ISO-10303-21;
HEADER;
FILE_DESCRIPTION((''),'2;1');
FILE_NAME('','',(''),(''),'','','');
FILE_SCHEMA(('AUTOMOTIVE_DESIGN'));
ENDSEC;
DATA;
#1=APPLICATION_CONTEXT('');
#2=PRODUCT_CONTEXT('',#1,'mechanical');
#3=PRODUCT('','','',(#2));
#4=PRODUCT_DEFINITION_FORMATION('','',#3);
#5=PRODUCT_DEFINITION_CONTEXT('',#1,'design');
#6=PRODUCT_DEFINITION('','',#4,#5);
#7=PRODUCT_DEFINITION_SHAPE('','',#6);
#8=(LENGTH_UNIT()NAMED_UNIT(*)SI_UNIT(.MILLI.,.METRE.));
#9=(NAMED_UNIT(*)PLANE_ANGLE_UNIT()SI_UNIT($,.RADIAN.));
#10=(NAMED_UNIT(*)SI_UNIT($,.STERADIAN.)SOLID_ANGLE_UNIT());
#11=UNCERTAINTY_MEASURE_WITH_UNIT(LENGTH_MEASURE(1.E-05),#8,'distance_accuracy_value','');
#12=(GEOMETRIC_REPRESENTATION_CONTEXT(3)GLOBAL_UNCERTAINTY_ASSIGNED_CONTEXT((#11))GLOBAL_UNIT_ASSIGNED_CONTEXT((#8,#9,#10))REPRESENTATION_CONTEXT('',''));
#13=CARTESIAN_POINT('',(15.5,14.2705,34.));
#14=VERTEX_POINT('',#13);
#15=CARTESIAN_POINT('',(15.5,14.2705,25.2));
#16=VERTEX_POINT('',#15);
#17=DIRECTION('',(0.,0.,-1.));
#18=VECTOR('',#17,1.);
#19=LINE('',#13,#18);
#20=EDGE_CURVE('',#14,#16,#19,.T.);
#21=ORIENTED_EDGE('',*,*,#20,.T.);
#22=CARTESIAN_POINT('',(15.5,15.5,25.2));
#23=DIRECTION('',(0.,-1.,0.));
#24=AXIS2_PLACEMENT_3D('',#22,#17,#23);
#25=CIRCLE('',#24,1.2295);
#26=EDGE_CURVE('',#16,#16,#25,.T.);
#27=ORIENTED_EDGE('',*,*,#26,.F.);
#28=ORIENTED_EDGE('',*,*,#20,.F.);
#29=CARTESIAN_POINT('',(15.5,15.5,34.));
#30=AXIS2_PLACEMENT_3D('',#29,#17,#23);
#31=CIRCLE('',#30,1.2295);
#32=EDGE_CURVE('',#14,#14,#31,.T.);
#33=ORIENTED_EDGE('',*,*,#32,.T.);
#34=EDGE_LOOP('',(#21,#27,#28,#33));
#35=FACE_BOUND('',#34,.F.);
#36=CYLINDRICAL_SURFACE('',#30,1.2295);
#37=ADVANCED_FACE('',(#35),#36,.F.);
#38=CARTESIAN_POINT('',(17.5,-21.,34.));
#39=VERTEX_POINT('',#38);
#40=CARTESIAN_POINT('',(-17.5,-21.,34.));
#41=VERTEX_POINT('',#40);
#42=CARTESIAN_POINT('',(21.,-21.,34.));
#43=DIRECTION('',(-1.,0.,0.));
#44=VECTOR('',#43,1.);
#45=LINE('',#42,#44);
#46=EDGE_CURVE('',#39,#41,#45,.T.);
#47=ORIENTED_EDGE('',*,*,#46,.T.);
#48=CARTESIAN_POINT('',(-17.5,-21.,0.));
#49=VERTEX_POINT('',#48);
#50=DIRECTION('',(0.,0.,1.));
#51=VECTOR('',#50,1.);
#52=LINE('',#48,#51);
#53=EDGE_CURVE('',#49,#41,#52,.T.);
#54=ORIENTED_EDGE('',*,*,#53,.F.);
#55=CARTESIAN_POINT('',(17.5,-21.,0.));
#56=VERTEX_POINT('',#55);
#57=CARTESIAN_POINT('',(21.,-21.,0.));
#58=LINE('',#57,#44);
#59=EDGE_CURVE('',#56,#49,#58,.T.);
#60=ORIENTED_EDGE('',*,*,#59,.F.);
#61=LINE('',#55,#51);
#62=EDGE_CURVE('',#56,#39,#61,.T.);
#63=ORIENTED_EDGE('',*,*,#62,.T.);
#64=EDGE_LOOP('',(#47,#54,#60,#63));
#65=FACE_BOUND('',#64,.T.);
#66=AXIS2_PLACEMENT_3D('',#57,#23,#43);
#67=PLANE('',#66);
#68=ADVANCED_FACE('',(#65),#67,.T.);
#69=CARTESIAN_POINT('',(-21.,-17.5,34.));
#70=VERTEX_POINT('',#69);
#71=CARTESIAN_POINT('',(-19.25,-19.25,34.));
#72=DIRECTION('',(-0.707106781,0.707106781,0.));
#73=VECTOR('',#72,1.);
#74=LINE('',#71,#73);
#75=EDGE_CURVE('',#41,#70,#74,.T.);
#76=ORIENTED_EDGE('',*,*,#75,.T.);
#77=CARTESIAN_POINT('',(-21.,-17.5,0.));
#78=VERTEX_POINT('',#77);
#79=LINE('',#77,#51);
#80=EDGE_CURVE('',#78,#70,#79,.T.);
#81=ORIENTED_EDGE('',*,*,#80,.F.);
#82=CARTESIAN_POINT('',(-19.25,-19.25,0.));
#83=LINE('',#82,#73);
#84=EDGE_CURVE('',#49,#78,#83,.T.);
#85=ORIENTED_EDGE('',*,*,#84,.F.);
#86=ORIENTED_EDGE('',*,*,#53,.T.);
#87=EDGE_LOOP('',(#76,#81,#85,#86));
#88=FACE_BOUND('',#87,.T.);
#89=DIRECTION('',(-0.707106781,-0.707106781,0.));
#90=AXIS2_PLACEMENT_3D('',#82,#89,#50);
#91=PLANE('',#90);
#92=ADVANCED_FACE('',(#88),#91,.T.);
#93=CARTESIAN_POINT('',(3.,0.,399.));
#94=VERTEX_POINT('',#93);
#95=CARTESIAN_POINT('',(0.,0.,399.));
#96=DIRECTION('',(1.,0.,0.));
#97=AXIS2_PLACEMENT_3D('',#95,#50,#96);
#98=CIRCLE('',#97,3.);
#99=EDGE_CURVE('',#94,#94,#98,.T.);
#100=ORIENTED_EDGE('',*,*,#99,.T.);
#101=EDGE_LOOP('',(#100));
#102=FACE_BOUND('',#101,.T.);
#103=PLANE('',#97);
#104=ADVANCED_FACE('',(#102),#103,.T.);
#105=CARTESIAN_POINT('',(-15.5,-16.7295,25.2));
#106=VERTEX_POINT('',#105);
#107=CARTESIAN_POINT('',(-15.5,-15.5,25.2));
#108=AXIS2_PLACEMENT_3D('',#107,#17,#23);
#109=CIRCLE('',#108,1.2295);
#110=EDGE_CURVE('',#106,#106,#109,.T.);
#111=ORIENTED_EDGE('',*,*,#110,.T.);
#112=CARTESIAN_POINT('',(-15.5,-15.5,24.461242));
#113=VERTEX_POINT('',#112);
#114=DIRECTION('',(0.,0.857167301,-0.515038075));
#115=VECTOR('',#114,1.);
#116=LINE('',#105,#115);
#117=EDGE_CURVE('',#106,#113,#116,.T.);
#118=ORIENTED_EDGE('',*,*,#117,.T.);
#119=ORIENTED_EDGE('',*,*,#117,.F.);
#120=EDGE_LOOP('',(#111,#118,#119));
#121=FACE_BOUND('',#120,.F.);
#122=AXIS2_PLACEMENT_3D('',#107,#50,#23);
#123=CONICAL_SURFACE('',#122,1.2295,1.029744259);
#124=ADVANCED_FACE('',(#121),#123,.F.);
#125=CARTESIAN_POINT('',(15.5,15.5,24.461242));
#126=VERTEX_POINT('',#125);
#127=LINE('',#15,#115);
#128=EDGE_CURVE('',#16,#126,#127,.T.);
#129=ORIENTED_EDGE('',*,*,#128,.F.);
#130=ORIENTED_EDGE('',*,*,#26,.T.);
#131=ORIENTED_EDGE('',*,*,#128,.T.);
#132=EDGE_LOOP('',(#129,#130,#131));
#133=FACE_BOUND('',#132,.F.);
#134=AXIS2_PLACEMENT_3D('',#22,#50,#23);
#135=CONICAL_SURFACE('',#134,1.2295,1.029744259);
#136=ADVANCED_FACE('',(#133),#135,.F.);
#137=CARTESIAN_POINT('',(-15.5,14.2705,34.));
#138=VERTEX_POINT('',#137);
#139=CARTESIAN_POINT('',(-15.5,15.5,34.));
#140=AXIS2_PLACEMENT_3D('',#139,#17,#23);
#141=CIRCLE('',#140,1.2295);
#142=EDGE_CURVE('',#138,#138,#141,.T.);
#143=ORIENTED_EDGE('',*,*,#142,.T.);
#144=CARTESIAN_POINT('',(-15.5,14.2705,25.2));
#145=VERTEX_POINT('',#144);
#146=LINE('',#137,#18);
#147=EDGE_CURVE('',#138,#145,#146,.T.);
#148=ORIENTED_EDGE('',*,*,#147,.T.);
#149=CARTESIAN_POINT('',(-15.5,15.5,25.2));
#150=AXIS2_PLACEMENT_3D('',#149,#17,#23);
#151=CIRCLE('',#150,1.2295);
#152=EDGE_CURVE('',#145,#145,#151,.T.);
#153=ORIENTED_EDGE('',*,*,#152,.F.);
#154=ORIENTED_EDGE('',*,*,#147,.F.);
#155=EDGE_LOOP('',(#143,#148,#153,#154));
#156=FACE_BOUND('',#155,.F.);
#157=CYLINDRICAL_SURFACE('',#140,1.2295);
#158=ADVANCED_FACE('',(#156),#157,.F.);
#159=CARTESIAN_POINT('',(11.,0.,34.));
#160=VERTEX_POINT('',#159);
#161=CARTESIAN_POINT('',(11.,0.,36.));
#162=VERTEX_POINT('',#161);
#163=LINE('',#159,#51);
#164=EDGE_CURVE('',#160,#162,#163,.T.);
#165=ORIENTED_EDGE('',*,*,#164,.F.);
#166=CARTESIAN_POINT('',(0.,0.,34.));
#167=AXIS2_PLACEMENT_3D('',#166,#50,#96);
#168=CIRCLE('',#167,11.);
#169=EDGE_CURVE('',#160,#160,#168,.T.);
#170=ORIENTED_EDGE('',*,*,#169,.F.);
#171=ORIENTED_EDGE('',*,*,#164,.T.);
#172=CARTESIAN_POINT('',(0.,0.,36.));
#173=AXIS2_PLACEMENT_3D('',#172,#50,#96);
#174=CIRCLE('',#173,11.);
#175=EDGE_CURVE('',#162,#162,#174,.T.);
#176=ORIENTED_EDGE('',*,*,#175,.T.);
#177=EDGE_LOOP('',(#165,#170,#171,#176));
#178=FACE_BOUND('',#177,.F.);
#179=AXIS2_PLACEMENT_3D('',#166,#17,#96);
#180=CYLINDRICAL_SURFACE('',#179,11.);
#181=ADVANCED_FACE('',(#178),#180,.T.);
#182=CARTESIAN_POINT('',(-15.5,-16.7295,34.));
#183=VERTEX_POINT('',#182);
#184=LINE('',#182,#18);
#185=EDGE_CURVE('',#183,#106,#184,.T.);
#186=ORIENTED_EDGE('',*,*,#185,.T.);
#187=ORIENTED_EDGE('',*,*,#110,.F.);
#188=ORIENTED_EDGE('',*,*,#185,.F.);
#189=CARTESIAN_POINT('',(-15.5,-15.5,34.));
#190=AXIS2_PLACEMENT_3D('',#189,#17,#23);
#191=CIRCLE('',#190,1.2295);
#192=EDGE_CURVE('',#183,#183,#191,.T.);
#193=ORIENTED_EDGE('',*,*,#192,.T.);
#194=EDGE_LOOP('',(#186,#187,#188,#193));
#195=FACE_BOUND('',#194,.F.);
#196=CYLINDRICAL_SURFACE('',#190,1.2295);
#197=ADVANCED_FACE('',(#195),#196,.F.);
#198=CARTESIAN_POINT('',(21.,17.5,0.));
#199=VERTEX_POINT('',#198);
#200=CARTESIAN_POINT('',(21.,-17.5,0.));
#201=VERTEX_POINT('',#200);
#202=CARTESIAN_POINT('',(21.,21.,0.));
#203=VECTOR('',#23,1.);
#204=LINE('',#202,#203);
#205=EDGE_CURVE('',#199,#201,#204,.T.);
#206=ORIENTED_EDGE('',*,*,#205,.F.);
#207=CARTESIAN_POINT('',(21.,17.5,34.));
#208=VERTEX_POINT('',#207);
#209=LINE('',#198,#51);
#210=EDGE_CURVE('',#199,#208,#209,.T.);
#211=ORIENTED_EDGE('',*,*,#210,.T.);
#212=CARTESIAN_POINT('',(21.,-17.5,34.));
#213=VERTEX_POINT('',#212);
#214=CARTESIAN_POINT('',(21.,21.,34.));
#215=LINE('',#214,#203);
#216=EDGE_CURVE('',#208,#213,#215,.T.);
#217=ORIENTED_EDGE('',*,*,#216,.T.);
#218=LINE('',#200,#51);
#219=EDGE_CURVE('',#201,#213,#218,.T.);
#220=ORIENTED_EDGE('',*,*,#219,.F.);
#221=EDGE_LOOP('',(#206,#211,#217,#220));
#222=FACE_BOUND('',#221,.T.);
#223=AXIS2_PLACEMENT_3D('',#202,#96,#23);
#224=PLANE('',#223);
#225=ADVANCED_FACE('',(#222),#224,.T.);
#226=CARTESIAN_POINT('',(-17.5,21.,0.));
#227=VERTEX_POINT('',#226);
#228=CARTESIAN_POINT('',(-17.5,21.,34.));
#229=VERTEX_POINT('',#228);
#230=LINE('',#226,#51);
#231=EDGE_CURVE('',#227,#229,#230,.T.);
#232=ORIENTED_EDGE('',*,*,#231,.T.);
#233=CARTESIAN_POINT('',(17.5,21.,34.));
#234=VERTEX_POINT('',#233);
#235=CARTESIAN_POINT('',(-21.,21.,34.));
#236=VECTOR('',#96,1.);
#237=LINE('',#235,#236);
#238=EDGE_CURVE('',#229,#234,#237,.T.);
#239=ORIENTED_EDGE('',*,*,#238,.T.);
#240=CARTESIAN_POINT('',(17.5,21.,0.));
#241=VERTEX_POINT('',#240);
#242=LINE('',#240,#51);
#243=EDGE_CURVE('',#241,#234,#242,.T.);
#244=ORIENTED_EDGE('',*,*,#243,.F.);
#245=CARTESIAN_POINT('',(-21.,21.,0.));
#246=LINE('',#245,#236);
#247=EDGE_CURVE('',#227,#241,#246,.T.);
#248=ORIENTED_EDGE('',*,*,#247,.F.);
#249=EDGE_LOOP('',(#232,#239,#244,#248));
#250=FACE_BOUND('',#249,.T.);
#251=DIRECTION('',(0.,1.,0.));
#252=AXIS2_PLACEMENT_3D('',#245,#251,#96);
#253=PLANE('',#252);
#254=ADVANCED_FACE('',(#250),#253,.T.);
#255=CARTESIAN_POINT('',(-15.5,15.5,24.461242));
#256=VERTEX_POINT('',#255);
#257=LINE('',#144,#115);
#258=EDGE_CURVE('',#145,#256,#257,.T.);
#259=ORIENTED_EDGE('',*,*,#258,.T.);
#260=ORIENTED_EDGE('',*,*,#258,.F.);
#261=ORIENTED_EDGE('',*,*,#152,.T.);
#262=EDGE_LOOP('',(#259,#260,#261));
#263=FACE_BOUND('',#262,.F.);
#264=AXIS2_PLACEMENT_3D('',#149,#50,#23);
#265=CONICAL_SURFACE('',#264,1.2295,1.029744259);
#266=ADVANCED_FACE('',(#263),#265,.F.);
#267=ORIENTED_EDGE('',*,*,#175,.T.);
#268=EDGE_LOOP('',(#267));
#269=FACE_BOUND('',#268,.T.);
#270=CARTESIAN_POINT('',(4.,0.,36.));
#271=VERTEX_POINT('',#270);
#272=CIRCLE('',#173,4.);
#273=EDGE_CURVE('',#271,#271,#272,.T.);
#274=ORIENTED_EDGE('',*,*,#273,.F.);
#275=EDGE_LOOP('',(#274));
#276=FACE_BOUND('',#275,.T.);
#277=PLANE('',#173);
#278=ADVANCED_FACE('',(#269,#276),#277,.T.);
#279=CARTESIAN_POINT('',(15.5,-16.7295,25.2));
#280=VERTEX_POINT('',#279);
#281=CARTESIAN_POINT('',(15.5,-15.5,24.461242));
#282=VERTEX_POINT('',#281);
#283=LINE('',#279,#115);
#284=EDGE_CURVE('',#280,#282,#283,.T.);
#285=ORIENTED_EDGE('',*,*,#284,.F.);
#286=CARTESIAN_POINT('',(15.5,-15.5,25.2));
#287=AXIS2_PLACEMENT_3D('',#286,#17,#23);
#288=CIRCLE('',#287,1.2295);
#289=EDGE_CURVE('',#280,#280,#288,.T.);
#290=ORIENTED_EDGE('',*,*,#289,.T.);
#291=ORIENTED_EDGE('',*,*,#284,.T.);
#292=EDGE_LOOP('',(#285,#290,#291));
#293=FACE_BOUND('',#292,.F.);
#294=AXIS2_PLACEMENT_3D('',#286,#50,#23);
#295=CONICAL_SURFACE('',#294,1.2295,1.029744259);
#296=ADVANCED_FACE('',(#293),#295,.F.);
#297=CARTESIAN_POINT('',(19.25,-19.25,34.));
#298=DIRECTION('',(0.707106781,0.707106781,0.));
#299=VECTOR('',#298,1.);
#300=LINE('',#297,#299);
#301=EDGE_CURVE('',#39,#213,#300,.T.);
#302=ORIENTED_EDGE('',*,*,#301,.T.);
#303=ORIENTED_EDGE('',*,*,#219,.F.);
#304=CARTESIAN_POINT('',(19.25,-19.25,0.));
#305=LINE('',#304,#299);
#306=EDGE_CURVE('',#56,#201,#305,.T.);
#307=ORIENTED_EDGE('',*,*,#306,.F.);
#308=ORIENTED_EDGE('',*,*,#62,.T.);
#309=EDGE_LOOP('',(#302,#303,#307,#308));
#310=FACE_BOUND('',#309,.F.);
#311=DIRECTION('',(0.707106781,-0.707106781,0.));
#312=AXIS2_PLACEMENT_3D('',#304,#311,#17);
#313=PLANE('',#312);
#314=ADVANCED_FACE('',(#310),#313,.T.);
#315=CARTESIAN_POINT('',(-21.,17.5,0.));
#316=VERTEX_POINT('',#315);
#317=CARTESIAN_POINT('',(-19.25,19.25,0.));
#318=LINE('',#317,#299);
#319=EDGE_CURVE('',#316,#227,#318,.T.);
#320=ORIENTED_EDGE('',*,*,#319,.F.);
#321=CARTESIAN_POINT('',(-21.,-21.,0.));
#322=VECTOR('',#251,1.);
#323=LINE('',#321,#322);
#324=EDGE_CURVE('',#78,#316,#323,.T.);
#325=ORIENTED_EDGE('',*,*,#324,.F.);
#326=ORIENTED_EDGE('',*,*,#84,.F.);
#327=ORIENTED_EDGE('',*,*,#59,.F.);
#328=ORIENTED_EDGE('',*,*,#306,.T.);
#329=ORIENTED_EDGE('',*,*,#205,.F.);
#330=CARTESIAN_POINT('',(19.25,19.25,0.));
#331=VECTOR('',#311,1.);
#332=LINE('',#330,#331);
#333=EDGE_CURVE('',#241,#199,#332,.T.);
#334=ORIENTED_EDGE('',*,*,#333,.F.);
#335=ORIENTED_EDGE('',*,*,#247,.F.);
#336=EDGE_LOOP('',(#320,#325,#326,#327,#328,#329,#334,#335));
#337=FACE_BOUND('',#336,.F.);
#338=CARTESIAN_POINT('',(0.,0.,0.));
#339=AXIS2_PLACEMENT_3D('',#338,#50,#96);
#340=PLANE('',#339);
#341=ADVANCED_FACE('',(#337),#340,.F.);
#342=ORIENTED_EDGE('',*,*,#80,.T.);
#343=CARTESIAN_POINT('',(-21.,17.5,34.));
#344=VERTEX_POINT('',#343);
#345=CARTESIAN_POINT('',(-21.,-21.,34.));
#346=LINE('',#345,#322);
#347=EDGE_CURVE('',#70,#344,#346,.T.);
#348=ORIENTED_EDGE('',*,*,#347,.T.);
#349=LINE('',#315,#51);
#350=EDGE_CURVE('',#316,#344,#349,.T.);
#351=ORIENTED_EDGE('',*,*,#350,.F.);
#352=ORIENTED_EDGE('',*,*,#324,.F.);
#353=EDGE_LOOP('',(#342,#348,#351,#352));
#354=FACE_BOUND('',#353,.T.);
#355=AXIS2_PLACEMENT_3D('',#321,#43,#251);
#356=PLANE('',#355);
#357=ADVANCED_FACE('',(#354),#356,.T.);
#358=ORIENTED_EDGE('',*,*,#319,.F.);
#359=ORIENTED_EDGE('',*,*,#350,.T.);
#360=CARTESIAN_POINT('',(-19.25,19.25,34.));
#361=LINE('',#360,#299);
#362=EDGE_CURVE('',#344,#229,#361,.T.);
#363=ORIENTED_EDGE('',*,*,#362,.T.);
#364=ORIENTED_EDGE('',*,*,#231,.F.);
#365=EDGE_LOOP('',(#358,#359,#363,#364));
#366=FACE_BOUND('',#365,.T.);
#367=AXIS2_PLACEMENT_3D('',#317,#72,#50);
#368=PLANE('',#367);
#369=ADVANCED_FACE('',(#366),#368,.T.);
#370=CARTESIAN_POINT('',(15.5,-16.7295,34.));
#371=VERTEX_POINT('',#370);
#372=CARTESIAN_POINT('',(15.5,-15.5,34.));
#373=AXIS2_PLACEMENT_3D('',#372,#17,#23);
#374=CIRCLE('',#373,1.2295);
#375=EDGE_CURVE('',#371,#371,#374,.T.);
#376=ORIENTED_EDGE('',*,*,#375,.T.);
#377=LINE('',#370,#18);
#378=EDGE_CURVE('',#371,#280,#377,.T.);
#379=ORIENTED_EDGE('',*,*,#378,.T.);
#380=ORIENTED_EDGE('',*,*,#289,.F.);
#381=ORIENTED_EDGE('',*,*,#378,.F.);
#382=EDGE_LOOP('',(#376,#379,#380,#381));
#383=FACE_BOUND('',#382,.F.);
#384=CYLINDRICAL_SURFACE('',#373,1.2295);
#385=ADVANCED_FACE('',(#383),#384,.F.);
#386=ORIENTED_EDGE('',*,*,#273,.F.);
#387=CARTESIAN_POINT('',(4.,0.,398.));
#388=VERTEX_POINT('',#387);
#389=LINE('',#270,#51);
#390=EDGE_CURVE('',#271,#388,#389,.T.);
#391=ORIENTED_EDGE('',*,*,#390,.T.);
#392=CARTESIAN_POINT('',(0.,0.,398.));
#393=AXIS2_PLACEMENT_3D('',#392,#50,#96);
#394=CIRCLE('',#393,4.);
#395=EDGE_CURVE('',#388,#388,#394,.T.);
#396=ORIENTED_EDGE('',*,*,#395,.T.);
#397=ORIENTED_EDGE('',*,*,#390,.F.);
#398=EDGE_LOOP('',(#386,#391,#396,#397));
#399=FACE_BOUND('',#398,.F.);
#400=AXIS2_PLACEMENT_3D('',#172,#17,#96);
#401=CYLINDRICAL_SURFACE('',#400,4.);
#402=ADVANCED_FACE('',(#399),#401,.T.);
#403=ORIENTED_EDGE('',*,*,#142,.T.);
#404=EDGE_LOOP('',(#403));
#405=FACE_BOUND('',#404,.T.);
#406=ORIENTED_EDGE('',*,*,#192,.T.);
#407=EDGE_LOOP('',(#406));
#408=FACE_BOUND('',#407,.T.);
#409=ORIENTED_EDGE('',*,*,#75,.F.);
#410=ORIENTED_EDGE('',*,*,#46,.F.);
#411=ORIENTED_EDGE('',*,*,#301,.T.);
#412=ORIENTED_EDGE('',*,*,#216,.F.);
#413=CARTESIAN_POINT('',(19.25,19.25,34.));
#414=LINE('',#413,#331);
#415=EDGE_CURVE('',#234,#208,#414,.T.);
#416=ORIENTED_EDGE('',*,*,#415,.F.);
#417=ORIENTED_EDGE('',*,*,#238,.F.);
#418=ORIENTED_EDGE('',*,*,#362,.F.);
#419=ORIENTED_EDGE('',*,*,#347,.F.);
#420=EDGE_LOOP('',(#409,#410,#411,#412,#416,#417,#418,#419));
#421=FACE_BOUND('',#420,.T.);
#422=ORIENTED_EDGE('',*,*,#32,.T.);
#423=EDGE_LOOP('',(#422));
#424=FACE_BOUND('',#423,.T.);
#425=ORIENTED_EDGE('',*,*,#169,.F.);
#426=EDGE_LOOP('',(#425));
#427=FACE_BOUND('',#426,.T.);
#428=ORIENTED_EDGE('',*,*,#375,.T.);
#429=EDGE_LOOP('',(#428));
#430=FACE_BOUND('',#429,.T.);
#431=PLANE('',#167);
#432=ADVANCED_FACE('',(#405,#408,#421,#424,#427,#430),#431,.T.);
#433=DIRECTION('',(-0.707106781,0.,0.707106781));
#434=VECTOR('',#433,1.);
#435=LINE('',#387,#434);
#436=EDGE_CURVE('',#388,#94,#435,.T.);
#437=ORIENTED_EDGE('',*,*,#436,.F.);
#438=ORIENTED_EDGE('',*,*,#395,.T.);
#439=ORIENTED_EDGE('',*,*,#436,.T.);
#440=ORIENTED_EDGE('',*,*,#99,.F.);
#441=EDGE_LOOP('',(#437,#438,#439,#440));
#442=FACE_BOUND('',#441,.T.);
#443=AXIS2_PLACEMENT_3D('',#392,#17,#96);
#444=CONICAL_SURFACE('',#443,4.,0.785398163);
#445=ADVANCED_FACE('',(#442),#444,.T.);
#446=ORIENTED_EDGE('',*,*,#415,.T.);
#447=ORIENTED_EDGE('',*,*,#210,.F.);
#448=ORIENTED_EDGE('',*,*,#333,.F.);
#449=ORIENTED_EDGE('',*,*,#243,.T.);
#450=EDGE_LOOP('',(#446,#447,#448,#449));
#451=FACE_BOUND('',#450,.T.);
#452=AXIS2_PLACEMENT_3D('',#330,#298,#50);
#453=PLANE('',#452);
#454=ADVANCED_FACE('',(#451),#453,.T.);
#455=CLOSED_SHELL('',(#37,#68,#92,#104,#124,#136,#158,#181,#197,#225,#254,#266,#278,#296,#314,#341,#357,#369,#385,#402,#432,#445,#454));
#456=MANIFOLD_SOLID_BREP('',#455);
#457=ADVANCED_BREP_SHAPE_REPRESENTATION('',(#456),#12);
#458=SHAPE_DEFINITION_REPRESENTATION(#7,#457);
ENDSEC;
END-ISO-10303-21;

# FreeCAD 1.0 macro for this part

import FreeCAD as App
import Part
import Sketcher

V = App.Vector


def edges_at(feature, points):
    """Names of the edges that pass closest to the given points."""
    edges = feature.Shape.Edges
    near = lambda p: min(range(len(edges)), key=lambda i: edges[i].distToShape(Part.Vertex(*p))[0])
    return sorted({f"Edge{near(p) + 1}" for p in points})


def add_polygon(sketch, points):
    """Adds a closed chain of lines whose ends are joined by coincident constraints."""
    first, n = sketch.GeometryCount, len(points)
    for a, b in zip(points, points[1:] + points[:1]):
        sketch.addGeometry(Part.LineSegment(App.Vector(*a, 0), App.Vector(*b, 0)), False)
    for i in range(n):
        sketch.addConstraint(Sketcher.Constraint("Coincident", first + i, 2, first + (i + 1) % n, 1))

doc = App.newDocument("Part")
params = doc.addObject("Spreadsheet::Sheet", "Params")
for row, (alias, value) in enumerate([
    ("sketch1_width", "42 mm"),
    ("pad1_length", "34 mm"),
    ("chamfer_size", "3.5 mm"),
    ("sketch2_diameter", "22 mm"),
    ("pad2_length", "2 mm"),
    ("sketch3_diameter", "8 mm"),
    ("pad3_length", "363 mm"),
    ("chamfer2_size", "1 mm"),
    ("hole_diameter", "2.459 mm"),
    ("hole_depth", "8.8 mm"),
], start=1):
    params.set(f"A{row}", alias)
    params.set(f"B{row}", "=" + value)
    params.setAlias(f"B{row}", alias)

body = doc.addObject("PartDesign::Body", "Body")

sketch1 = doc.addObject("Sketcher::SketchObject", "Sketch")
body.addObject(sketch1)
sketch1.AttachmentSupport = (doc.XY_Plane, [""])
sketch1.MapMode = "FlatFace"
add_polygon(sketch1, [(-21, -21), (21, -21), (21, 21), (-21, 21)])
sketch1.addConstraint([
    Sketcher.Constraint("Horizontal", 0),
    Sketcher.Constraint("Vertical", 1),
    Sketcher.Constraint("Horizontal", 2),
    Sketcher.Constraint("Vertical", 3),
    Sketcher.Constraint("Symmetric", 0, 2, 2, 2, -1, 1),
    Sketcher.Constraint("Equal", 2, 1),
    Sketcher.Constraint("DistanceX", 0, 1, 0, 2, 42.0),
])
sketch1.setExpression("Constraints[10]", "Params.sketch1_width")
pad1 = doc.addObject("PartDesign::Pad", "Pad")
body.addObject(pad1)
pad1.Profile = sketch1
pad1.setExpression("Length", "Params.pad1_length")
doc.recompute()

chamfer = doc.addObject("PartDesign::Chamfer", "Chamfer")
body.addObject(chamfer)
chamfer.Base = (pad1, edges_at(pad1, [
    (-21, 21, 17),
    (21, 21, 17),
    (21, -21, 17),
    (-21, -21, 17),
]))
chamfer.setExpression("Size", "Params.chamfer_size")

sketch2 = doc.addObject("Sketcher::SketchObject", "Sketch001")
body.addObject(sketch2)
sketch2.AttachmentSupport = (doc.XY_Plane, [""])
sketch2.MapMode = "FlatFace"
sketch2.AttachmentOffset = App.Placement(V(0, 0, 34), App.Rotation())
sketch2.addGeometry(Part.Circle(V(0, 0, 0), V(0, 0, 1), 11), False)
sketch2.addConstraint([
    Sketcher.Constraint("Coincident", 0, 3, -1, 1),
    Sketcher.Constraint("Diameter", 0, 22.0),
])
sketch2.setExpression("Constraints[1]", "Params.sketch2_diameter")
pad2 = doc.addObject("PartDesign::Pad", "Pad001")
body.addObject(pad2)
pad2.Profile = sketch2
pad2.setExpression("Length", "Params.pad2_length")

sketch3 = doc.addObject("Sketcher::SketchObject", "Sketch002")
body.addObject(sketch3)
sketch3.AttachmentSupport = (doc.XY_Plane, [""])
sketch3.MapMode = "FlatFace"
sketch3.AttachmentOffset = App.Placement(V(0, 0, 36), App.Rotation())
sketch3.addGeometry(Part.Circle(V(0, 0, 0), V(0, 0, 1), 4), False)
sketch3.addConstraint([
    Sketcher.Constraint("Coincident", 0, 3, -1, 1),
    Sketcher.Constraint("Diameter", 0, 8.0),
])
sketch3.setExpression("Constraints[1]", "Params.sketch3_diameter")
pad3 = doc.addObject("PartDesign::Pad", "Pad002")
body.addObject(pad3)
pad3.Profile = sketch3
pad3.setExpression("Length", "Params.pad3_length")
doc.recompute()

chamfer2 = doc.addObject("PartDesign::Chamfer", "Chamfer001")
body.addObject(chamfer2)
chamfer2.Base = (pad3, edges_at(pad3, [(-4, 0, 399)]))
chamfer2.setExpression("Size", "Params.chamfer2_size")

sketch4 = doc.addObject("Sketcher::SketchObject", "Sketch003")
body.addObject(sketch4)
sketch4.AttachmentSupport = (doc.XY_Plane, [""])
sketch4.MapMode = "FlatFace"
sketch4.AttachmentOffset = App.Placement(V(0, 0, 34), App.Rotation())
sketch4.addGeometry([
    Part.Circle(V(-15.5, 15.5, 0), V(0, 0, 1), 1.2),
    Part.Circle(V(-15.5, -15.5, 0), V(0, 0, 1), 1.2),
    Part.Circle(V(15.5, -15.5, 0), V(0, 0, 1), 1.2),
    Part.Circle(V(15.5, 15.5, 0), V(0, 0, 1), 1.2),
], False)
sketch4.addConstraint([
    Sketcher.Constraint("Equal", 0, 1),
    Sketcher.Constraint("Equal", 1, 2),
    Sketcher.Constraint("Equal", 2, 3),
    Sketcher.Constraint("Symmetric", 0, 3, 2, 3, -1, 1),
    Sketcher.Constraint("Symmetric", 1, 3, 3, 3, -1, 1),
    Sketcher.Constraint("Symmetric", 1, 3, 2, 3, -2),
    Sketcher.Constraint("Diameter", 0, 2.459),
    Sketcher.Constraint("DistanceY", 1, 3, 0, 3, 31.0),
    Sketcher.Constraint("DistanceX", 1, 3, 2, 3, 31.0),
])
doc.recompute()
hole = doc.addObject("PartDesign::Hole", "Hole")
body.addObject(hole)
hole.Profile = sketch4
hole.ThreadType = "None"
hole.setExpression("Diameter", "Params.hole_diameter")
hole.DepthType = "Dimension"
hole.setExpression("Depth", "Params.hole_depth")
hole.DrillPoint = "Angled"
hole.DrillPointAngle = 118

doc.recompute()
